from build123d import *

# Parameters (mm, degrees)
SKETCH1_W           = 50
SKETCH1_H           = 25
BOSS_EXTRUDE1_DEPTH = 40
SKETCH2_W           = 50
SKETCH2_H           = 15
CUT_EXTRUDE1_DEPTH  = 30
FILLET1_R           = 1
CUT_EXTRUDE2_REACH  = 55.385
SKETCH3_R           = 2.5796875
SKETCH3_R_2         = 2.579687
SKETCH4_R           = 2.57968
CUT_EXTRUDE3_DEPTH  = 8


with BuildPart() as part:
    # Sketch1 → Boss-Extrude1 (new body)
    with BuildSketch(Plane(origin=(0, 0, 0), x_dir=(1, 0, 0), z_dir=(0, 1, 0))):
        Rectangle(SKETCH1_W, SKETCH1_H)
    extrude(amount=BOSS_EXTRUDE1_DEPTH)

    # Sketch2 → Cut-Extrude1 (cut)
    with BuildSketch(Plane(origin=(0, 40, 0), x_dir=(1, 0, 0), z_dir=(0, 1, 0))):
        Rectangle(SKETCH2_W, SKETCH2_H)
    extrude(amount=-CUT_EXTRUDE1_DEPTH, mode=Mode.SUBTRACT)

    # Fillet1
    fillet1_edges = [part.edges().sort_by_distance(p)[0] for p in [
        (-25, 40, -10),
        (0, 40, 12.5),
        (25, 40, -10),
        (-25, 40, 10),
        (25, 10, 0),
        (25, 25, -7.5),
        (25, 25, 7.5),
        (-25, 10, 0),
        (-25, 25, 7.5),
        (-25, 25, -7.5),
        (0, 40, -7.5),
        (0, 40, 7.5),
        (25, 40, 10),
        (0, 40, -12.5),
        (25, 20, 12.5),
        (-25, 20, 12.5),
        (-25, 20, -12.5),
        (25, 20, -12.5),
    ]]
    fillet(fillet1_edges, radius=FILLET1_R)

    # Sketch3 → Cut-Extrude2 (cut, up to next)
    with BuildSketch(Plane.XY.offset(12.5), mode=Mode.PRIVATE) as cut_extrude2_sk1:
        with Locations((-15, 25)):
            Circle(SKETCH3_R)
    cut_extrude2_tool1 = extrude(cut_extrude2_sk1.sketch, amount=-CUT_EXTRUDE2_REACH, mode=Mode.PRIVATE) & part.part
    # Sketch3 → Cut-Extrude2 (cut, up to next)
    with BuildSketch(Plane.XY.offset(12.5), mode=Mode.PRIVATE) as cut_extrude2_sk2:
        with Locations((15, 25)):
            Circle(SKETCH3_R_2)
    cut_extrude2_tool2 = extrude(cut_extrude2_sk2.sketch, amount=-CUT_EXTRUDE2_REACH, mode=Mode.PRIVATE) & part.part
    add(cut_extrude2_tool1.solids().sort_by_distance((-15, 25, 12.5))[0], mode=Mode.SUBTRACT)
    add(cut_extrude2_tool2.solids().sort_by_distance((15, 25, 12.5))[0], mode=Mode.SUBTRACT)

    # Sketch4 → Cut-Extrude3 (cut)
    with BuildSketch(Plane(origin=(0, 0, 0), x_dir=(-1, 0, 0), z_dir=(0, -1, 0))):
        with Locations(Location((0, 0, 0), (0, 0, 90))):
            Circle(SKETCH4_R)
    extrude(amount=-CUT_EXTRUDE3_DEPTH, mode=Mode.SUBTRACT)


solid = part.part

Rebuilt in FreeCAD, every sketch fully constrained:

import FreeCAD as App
import Part
import Sketcher

V = App.Vector
Q = App.Units.Quantity


def edges_at(feature, points):
    """Names of the edges that pass closest to the given points."""
    edges = feature.Shape.Edges
    near = lambda p: min(range(len(edges)), key=lambda i: edges[i].distToShape(Part.Vertex(*p))[0])
    return sorted({f"Edge{near(p) + 1}" for p in points})


def add_polygon(sketch, points):
    """Adds a closed chain of lines whose ends are joined by coincident constraints."""
    first, n = sketch.GeometryCount, len(points)
    for a, b in zip(points, points[1:] + points[:1]):
        sketch.addGeometry(Part.LineSegment(App.Vector(*a, 0), App.Vector(*b, 0)), False)
    for i in range(n):
        sketch.addConstraint(Sketcher.Constraint("Coincident", first + i, 2, first + (i + 1) % n, 1))

doc = App.newDocument("Part")
params = doc.addObject("Spreadsheet::Sheet", "Params")
for row, (alias, value) in enumerate([
    ("sketch1_width", "50 mm"),
    ("sketch1_height", "25 mm"),
    ("pad1_length", "40 mm"),
    ("sketch2_width", "50 mm"),
    ("sketch2_height", "15 mm"),
    ("pocket1_length", "30 mm"),
    ("fillet_radius", "1 mm"),
    ("pocket4_length", "8 mm"),
], start=1):
    params.set(f"A{row}", alias)
    params.set(f"B{row}", "=" + value)
    params.setAlias(f"B{row}", alias)

body = doc.addObject("PartDesign::Body", "Body")

sketch1 = doc.addObject("Sketcher::SketchObject", "Sketch")
body.addObject(sketch1)
sketch1.AttachmentSupport = (doc.XZ_Plane, [""])
sketch1.MapMode = "FlatFace"
add_polygon(sketch1, [(-25, -12), (-25, 12), (25, 12), (25, -12)])
sketch1.addConstraint([
    Sketcher.Constraint("Vertical", 0),
    Sketcher.Constraint("Horizontal", 1),
    Sketcher.Constraint("Vertical", 2),
    Sketcher.Constraint("Horizontal", 3),
    Sketcher.Constraint("Symmetric", 0, 2, 2, 2, -1, 1),
    Sketcher.Constraint("DistanceX", 1, 1, 1, 2, Q("50 mm")),
    Sketcher.Constraint("DistanceY", 0, 1, 0, 2, Q("25 mm")),
])
sketch1.setExpression("Constraints[9]", "Params.sketch1_width")
sketch1.setExpression("Constraints[10]", "Params.sketch1_height")
pad1 = doc.addObject("PartDesign::Pad", "Pad")
body.addObject(pad1)
pad1.Profile = sketch1
pad1.setExpression("Length", "Params.pad1_length")
pad1.Reversed = True

sketch2 = doc.addObject("Sketcher::SketchObject", "Sketch001")
body.addObject(sketch2)
sketch2.AttachmentSupport = (doc.XZ_Plane, [""])
sketch2.MapMode = "FlatFace"
sketch2.AttachmentOffset = App.Placement(V(0, 0, -40), App.Rotation())
add_polygon(sketch2, [(-25, -8), (-25, 8), (25, 8), (25, -8)])
sketch2.addConstraint([
    Sketcher.Constraint("Vertical", 0),
    Sketcher.Constraint("Horizontal", 1),
    Sketcher.Constraint("Vertical", 2),
    Sketcher.Constraint("Horizontal", 3),
    Sketcher.Constraint("Symmetric", 0, 2, 2, 2, -1, 1),
    Sketcher.Constraint("DistanceX", 1, 1, 1, 2, Q("50 mm")),
    Sketcher.Constraint("DistanceY", 0, 1, 0, 2, Q("15 mm")),
])
sketch2.setExpression("Constraints[9]", "Params.sketch2_width")
sketch2.setExpression("Constraints[10]", "Params.sketch2_height")
pocket1 = doc.addObject("PartDesign::Pocket", "Pocket")
body.addObject(pocket1)
pocket1.Profile = sketch2
pocket1.setExpression("Length", "Params.pocket1_length")
pocket1.Reversed = True
doc.recompute()

fillet = doc.addObject("PartDesign::Fillet", "Fillet")
body.addObject(fillet)
fillet.Base = (pocket1, edges_at(pocket1, [
    (-25, 40, -10),
    (0, 40, 12.5),
    (25, 40, -10),
    (-25, 40, 10),
    (25, 10, 0),
    (25, 25, -7.5),
    (25, 25, 7.5),
    (-25, 10, 0),
    (-25, 25, 7.5),
    (-25, 25, -7.5),
    (0, 40, -7.5),
    (0, 40, 7.5),
    (25, 40, 10),
    (0, 40, -12.5),
    (25, 20, 12.5),
    (-25, 20, 12.5),
    (-25, 20, -12.5),
    (25, 20, -12.5),
]))
fillet.setExpression("Radius", "Params.fillet_radius")

sketch3 = doc.addObject("Sketcher::SketchObject", "Sketch002")
body.addObject(sketch3)
sketch3.AttachmentSupport = (doc.XY_Plane, [""])
sketch3.MapMode = "FlatFace"
sketch3.AttachmentOffset = App.Placement(V(0, 0, 12.5), App.Rotation())
sketch3.addGeometry(Part.Circle(V(-15, 25, 0), V(0, 0, 1), 2.6), False)
sketch3.addConstraint([
    Sketcher.Constraint("DistanceX", 0, 3, -1, 1, Q("15 mm")),
    Sketcher.Constraint("DistanceY", -1, 1, 0, 3, Q("25 mm")),
    Sketcher.Constraint("Diameter", 0, Q("5.159375 mm")),
])
pocket2 = doc.addObject("PartDesign::Pocket", "Pocket001")
body.addObject(pocket2)
pocket2.Profile = sketch3
pocket2.Type = "UpToFirst"

sketch4 = doc.addObject("Sketcher::SketchObject", "Sketch003")
body.addObject(sketch4)
sketch4.AttachmentSupport = (doc.XY_Plane, [""])
sketch4.MapMode = "FlatFace"
sketch4.AttachmentOffset = App.Placement(V(0, 0, 12.5), App.Rotation())
sketch4.addGeometry(Part.Circle(V(15, 25, 0), V(0, 0, 1), 2.6), False)
sketch4.addConstraint([
    Sketcher.Constraint("DistanceX", -1, 1, 0, 3, Q("15 mm")),
    Sketcher.Constraint("DistanceY", -1, 1, 0, 3, Q("25 mm")),
    Sketcher.Constraint("Diameter", 0, Q("5.159374 mm")),
])
pocket3 = doc.addObject("PartDesign::Pocket", "Pocket002")
body.addObject(pocket3)
pocket3.Profile = sketch4
pocket3.Type = "UpToFirst"

sketch5 = doc.addObject("Sketcher::SketchObject", "Sketch004")
body.addObject(sketch5)
sketch5.AttachmentSupport = (doc.XZ_Plane, [""])
sketch5.MapMode = "FlatFace"
sketch5.addGeometry(Part.Circle(V(0, 0, 0), V(0, 0, 1), 2.6), False)
sketch5.addConstraint([
    Sketcher.Constraint("Coincident", 0, 3, -1, 1),
    Sketcher.Constraint("Diameter", 0, Q("5.15936 mm")),
])
pocket4 = doc.addObject("PartDesign::Pocket", "Pocket003")
body.addObject(pocket4)
pocket4.Profile = sketch5
pocket4.setExpression("Length", "Params.pocket4_length")

doc.recompute()
